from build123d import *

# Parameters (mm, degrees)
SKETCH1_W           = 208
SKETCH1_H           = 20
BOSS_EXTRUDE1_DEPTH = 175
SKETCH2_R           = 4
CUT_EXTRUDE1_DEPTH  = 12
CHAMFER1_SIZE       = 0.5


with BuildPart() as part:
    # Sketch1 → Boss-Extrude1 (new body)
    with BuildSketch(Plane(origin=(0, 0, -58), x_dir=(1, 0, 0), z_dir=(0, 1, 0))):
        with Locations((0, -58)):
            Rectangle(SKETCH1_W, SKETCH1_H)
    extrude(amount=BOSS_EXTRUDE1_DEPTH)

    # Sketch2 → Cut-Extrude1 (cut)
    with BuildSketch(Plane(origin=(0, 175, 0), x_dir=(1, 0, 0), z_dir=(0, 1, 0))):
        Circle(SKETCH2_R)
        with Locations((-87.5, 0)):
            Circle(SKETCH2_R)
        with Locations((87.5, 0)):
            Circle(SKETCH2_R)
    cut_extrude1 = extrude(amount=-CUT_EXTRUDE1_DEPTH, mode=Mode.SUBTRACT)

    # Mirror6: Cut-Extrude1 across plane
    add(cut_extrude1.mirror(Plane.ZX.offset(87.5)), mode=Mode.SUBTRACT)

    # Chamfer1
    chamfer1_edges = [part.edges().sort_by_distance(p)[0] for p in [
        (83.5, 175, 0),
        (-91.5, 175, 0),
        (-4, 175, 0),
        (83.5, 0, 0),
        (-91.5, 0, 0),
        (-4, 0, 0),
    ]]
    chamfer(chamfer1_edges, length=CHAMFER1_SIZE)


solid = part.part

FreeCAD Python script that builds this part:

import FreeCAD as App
import Part
import Sketcher
from FreeCAD import Vector
Q = App.Units.Quantity


def edges_at(feature, points):
    """Names of the edges that pass closest to the given points."""
    edges = feature.Shape.Edges
    near = lambda p: min(range(len(edges)), key=lambda i: edges[i].distToShape(Part.Vertex(*p))[0])
    return sorted({f"Edge{near(p) + 1}" for p in points})

doc = App.newDocument("Part")
body = doc.addObject("PartDesign::Body", "Body")

sketch1 = doc.addObject("Sketcher::SketchObject", "Sketch")
body.addObject(sketch1)
sketch1.AttachmentSupport = (doc.XZ_Plane, [""])
sketch1.MapMode = "FlatFace"
sketch1.addGeometry([
    Part.LineSegment(Vector(-104, -10, 0), Vector(-104, 10, 0)),
    Part.LineSegment(Vector(-104, 10, 0), Vector(104, 10, 0)),
    Part.LineSegment(Vector(104, 10, 0), Vector(104, -10, 0)),
    Part.LineSegment(Vector(104, -10, 0), Vector(-104, -10, 0)),
], False)
sketch1.addConstraint([
    Sketcher.Constraint("Coincident", 0, 2, 1, 1),
    Sketcher.Constraint("Coincident", 1, 2, 2, 1),
    Sketcher.Constraint("Coincident", 2, 2, 3, 1),
    Sketcher.Constraint("Coincident", 3, 2, 0, 1),
    Sketcher.Constraint("Vertical", 0),
    Sketcher.Constraint("Horizontal", 1),
    Sketcher.Constraint("Vertical", 2),
    Sketcher.Constraint("Horizontal", 3),
    Sketcher.Constraint("Symmetric", 0, 2, 2, 2, -1, 1),
    Sketcher.Constraint("DistanceX", 1, 1, 1, 2, Q("208 mm")),
    Sketcher.Constraint("DistanceY", 0, 1, 0, 2, Q("20 mm")),
])
pad1 = doc.addObject("PartDesign::Pad", "Pad")
body.addObject(pad1)
pad1.Profile = sketch1
pad1.Length = 175
pad1.Reversed = True

sketch2 = doc.addObject("Sketcher::SketchObject", "Sketch001")
body.addObject(sketch2)
sketch2.AttachmentSupport = (doc.XZ_Plane, [""])
sketch2.MapMode = "FlatFace"
sketch2.AttachmentOffset = App.Placement(Vector(0, 0, -175), App.Rotation())
sketch2.addGeometry([
    Part.Circle(Vector(0, 0, 0), Vector(0, 0, 1), 4),
    Part.Circle(Vector(-87.5, 0, 0), Vector(0, 0, 1), 4),
    Part.Circle(Vector(87.5, 0, 0), Vector(0, 0, 1), 4),
], False)
sketch2.addConstraint([
    Sketcher.Constraint("Coincident", 0, 3, -1, 1),
    Sketcher.Constraint("Equal", 0, 1),
    Sketcher.Constraint("Equal", 1, 2),
    Sketcher.Constraint("Symmetric", 1, 3, 2, 3, -1, 1),
    Sketcher.Constraint("PointOnObject", 1, 3, -1),
    Sketcher.Constraint("Diameter", 0, Q("8 mm")),
    Sketcher.Constraint("DistanceX", 1, 3, 2, 3, Q("175 mm")),
])
pocket1 = doc.addObject("PartDesign::Pocket", "Pocket")
body.addObject(pocket1)
pocket1.Profile = sketch2
pocket1.Length = 12
pocket1.Reversed = True
doc.recompute()

datumplane = doc.addObject("PartDesign::Plane", "DatumPlane")
body.addObject(datumplane)
datumplane.AttachmentSupport = (doc.XZ_Plane, [""])
datumplane.MapMode = "FlatFace"
datumplane.AttachmentOffset = App.Placement(Vector(0, 0, -87.5), App.Rotation())
mirrored = doc.addObject("PartDesign::Mirrored", "Mirrored")
body.addObject(mirrored)
mirrored.Originals = [pocket1]
mirrored.MirrorPlane = (datumplane, [""])
body.Tip = mirrored
doc.recompute()

chamfer = doc.addObject("PartDesign::Chamfer", "Chamfer")
body.addObject(chamfer)
chamfer.Base = (mirrored, edges_at(mirrored, [
    (83.5, 175, 0),
    (-91.5, 175, 0),
    (-4, 175, 0),
    (83.5, 0, 0),
    (-91.5, 0, 0),
    (-4, 0, 0),
]))
chamfer.Size = 0.5

doc.recompute()
